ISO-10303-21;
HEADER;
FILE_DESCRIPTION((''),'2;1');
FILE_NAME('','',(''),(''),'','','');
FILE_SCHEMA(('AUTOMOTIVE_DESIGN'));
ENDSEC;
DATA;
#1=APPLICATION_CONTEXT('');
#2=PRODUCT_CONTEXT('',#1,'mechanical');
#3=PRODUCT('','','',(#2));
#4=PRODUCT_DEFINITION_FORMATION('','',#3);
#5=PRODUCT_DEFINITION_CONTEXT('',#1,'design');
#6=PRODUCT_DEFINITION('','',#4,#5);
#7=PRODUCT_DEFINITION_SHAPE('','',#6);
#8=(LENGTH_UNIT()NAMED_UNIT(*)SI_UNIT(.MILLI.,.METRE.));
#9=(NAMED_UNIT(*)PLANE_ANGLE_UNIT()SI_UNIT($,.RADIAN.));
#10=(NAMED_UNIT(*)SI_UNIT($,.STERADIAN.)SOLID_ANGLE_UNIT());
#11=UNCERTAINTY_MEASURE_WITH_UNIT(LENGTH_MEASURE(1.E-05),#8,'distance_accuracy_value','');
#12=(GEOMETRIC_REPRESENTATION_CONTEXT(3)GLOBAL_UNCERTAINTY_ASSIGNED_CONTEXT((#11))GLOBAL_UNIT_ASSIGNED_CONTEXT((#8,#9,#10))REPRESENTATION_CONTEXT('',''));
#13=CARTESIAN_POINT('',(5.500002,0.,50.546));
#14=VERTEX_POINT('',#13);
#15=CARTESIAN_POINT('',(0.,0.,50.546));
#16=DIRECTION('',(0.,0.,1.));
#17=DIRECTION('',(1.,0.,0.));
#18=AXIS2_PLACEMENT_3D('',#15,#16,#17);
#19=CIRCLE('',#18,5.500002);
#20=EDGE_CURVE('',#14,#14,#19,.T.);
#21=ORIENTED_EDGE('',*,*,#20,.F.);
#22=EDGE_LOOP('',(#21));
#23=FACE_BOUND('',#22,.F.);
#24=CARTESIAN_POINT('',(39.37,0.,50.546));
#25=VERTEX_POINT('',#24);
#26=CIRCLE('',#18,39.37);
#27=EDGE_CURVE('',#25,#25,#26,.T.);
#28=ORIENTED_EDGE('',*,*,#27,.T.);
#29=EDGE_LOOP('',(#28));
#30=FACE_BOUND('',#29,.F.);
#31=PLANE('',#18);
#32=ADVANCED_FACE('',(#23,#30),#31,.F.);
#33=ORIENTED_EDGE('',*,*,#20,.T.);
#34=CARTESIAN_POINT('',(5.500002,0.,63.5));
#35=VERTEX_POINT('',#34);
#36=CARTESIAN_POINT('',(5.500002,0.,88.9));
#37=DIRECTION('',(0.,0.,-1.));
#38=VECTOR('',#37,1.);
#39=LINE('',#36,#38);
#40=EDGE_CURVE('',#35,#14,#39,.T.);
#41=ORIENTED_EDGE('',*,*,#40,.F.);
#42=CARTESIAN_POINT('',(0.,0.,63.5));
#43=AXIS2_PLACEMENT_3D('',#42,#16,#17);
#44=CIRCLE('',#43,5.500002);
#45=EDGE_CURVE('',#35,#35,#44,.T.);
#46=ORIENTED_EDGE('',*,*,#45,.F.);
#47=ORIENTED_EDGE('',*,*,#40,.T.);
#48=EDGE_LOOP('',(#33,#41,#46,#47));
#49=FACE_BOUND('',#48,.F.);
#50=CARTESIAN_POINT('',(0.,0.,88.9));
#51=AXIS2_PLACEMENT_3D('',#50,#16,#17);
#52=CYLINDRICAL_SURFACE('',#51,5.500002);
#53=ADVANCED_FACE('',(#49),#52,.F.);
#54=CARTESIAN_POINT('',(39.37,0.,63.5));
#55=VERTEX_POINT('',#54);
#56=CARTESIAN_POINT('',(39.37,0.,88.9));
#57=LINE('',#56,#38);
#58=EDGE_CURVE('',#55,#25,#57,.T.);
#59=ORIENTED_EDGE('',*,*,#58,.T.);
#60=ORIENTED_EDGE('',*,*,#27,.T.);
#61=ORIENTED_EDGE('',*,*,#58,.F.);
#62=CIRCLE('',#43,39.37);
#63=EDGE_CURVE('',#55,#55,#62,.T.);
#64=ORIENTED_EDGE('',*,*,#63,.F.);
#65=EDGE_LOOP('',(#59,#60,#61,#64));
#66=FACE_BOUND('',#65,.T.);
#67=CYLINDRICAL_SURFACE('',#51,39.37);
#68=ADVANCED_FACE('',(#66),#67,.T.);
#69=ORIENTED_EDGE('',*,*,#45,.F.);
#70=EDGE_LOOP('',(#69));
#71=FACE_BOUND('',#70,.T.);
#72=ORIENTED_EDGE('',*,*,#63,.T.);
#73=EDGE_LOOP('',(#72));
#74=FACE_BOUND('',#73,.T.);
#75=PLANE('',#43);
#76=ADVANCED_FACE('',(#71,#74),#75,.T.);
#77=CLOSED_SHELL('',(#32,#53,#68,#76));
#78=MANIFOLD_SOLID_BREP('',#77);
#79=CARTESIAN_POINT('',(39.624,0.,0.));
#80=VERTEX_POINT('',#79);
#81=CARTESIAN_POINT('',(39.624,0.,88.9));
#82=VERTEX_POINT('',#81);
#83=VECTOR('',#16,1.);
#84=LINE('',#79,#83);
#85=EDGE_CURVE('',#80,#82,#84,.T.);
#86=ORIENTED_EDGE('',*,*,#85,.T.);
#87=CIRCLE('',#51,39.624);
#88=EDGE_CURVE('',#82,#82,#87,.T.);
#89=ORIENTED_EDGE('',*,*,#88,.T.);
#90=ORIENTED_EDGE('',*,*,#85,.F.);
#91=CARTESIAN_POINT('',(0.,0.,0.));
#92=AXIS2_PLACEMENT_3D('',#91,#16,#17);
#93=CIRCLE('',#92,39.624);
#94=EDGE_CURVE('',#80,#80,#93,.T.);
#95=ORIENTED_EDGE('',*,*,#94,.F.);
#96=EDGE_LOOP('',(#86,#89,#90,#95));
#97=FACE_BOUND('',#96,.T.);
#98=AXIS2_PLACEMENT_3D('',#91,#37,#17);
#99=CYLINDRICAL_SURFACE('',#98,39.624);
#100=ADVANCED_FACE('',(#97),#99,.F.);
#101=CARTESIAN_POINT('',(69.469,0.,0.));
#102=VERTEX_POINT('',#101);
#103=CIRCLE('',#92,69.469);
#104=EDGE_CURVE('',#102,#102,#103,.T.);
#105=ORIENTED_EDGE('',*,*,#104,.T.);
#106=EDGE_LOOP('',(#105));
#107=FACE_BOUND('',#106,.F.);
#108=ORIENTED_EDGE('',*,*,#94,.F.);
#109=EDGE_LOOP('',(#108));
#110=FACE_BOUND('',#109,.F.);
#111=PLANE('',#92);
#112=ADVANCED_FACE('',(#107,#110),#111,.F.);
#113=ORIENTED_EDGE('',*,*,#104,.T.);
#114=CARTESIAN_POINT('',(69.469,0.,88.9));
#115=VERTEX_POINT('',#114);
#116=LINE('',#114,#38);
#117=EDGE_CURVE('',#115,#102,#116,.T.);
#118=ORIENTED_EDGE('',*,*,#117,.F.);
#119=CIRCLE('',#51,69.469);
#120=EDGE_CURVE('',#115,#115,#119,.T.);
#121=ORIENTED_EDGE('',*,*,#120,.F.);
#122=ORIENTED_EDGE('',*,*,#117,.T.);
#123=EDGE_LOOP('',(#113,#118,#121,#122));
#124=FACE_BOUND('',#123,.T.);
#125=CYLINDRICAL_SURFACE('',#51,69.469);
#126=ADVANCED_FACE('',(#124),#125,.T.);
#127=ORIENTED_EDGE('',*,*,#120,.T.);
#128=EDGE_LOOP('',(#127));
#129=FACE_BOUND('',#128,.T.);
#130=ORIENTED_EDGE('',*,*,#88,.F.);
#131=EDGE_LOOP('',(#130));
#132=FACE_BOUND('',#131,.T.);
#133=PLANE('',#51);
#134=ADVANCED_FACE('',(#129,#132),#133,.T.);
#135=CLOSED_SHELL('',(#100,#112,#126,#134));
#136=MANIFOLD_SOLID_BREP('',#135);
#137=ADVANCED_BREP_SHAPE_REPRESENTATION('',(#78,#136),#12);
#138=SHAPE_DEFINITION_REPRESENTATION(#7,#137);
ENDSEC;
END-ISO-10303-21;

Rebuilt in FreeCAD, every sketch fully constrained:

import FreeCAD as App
import Part
import Sketcher
Q = App.Units.Quantity

doc = App.newDocument("Part")
body = doc.addObject("PartDesign::Body", "Body")

sketch1 = body.newObject("Sketcher::SketchObject", "Sketch")
sketch1.AttachmentSupport = (doc.getObject("XY_Plane"), [""])
sketch1.MapMode = "FlatFace"
sketch1.addGeometry([
    Part.Circle(App.Vector(0, 0, 0), App.Vector(0, 0, 1), 50.8),
    Part.Circle(App.Vector(0, 0, 0), App.Vector(0, 0, 1), 39.624),
], False)
sketch1.addConstraint([
    Sketcher.Constraint("Coincident", 0, 3, -1, 1),
    Sketcher.Constraint("Coincident", 1, 3, -1, 1),
    Sketcher.Constraint("Diameter", 0, Q("4 in")),
    Sketcher.Constraint("Diameter", 1, Q("3.12 in")),
])
pad1 = body.newObject("PartDesign::Pad", "Pad")
pad1.Profile = sketch1
pad1.Length = Q("3.5 in")

sketch2 = body.newObject("Sketcher::SketchObject", "Sketch001")
sketch2.AttachmentSupport = (doc.getObject("XY_Plane"), [""])
sketch2.MapMode = "FlatFace"
sketch2.AttachmentOffset = App.Placement(App.Vector(0, 0, 3.5 * 25.4), App.Rotation())
sketch2.addGeometry([
    Part.Circle(App.Vector(0, 0, 0), App.Vector(0, 0, 1), 69.469),
    Part.Circle(App.Vector(0, 0, 0), App.Vector(0, 0, 1), 50.8),
], False)
sketch2.addConstraint([
    Sketcher.Constraint("Coincident", 0, 3, -1, 1),
    Sketcher.Constraint("Coincident", 1, 3, -1, 1),
    Sketcher.Constraint("Diameter", 1, Q("4 in")),
    Sketcher.Constraint("Diameter", 0, Q("5.47 in")),
])
pad2 = body.newObject("PartDesign::Pad", "Pad001")
pad2.Profile = sketch2
pad2.Length = Q("3.5 in")
pad2.Reversed = True
body2 = doc.addObject("PartDesign::Body", "Body001")

sketch3 = body2.newObject("Sketcher::SketchObject", "Sketch002")
sketch3.AttachmentSupport = (doc.getObject("XY_Plane001"), [""])
sketch3.MapMode = "FlatFace"
sketch3.AttachmentOffset = App.Placement(App.Vector(0, 0, 3.5 * 25.4), App.Rotation())
sketch3.addGeometry([
    Part.Circle(App.Vector(0, 0, 0), App.Vector(0, 0, 1), 39.37),
    Part.Circle(App.Vector(0, 0, 0), App.Vector(0, 0, 1), 5.500002),
], False)
sketch3.addConstraint([
    Sketcher.Constraint("Coincident", 0, 3, -1, 1),
    Sketcher.Constraint("Coincident", 1, 3, -1, 1),
    Sketcher.Constraint("Diameter", 0, Q("3.1 in")),
    Sketcher.Constraint("Diameter", 1, 11.000004),
])
pad3 = body2.newObject("PartDesign::Pad", "Pad002")
pad3.Profile = sketch3
pad3.Length = Q("1.51 in")
pad3.Reversed = True

sketch4 = body2.newObject("Sketcher::SketchObject", "Sketch003")
sketch4.AttachmentSupport = (doc.getObject("XY_Plane001"), [""])
sketch4.MapMode = "FlatFace"
sketch4.AttachmentOffset = App.Placement(App.Vector(0, 0, 3.5 * 25.4), App.Rotation())
sketch4.addGeometry([
    Part.Circle(App.Vector(0, 0, 0), App.Vector(0, 0, 1), 39.37),
    Part.Circle(App.Vector(0, 0, 0), App.Vector(0, 0, 1), 5.500002),
], False)
sketch4.addConstraint([
    Sketcher.Constraint("Coincident", 0, 3, -1, 1),
    Sketcher.Constraint("Coincident", 1, 3, -1, 1),
    Sketcher.Constraint("Diameter", 0, Q("3.1 in")),
    Sketcher.Constraint("Diameter", 1, 11.000004),
])
pocket1 = body2.newObject("PartDesign::Pocket", "Pocket")
pocket1.Profile = sketch4
pocket1.Length = Q("1 in")

doc.recompute()
